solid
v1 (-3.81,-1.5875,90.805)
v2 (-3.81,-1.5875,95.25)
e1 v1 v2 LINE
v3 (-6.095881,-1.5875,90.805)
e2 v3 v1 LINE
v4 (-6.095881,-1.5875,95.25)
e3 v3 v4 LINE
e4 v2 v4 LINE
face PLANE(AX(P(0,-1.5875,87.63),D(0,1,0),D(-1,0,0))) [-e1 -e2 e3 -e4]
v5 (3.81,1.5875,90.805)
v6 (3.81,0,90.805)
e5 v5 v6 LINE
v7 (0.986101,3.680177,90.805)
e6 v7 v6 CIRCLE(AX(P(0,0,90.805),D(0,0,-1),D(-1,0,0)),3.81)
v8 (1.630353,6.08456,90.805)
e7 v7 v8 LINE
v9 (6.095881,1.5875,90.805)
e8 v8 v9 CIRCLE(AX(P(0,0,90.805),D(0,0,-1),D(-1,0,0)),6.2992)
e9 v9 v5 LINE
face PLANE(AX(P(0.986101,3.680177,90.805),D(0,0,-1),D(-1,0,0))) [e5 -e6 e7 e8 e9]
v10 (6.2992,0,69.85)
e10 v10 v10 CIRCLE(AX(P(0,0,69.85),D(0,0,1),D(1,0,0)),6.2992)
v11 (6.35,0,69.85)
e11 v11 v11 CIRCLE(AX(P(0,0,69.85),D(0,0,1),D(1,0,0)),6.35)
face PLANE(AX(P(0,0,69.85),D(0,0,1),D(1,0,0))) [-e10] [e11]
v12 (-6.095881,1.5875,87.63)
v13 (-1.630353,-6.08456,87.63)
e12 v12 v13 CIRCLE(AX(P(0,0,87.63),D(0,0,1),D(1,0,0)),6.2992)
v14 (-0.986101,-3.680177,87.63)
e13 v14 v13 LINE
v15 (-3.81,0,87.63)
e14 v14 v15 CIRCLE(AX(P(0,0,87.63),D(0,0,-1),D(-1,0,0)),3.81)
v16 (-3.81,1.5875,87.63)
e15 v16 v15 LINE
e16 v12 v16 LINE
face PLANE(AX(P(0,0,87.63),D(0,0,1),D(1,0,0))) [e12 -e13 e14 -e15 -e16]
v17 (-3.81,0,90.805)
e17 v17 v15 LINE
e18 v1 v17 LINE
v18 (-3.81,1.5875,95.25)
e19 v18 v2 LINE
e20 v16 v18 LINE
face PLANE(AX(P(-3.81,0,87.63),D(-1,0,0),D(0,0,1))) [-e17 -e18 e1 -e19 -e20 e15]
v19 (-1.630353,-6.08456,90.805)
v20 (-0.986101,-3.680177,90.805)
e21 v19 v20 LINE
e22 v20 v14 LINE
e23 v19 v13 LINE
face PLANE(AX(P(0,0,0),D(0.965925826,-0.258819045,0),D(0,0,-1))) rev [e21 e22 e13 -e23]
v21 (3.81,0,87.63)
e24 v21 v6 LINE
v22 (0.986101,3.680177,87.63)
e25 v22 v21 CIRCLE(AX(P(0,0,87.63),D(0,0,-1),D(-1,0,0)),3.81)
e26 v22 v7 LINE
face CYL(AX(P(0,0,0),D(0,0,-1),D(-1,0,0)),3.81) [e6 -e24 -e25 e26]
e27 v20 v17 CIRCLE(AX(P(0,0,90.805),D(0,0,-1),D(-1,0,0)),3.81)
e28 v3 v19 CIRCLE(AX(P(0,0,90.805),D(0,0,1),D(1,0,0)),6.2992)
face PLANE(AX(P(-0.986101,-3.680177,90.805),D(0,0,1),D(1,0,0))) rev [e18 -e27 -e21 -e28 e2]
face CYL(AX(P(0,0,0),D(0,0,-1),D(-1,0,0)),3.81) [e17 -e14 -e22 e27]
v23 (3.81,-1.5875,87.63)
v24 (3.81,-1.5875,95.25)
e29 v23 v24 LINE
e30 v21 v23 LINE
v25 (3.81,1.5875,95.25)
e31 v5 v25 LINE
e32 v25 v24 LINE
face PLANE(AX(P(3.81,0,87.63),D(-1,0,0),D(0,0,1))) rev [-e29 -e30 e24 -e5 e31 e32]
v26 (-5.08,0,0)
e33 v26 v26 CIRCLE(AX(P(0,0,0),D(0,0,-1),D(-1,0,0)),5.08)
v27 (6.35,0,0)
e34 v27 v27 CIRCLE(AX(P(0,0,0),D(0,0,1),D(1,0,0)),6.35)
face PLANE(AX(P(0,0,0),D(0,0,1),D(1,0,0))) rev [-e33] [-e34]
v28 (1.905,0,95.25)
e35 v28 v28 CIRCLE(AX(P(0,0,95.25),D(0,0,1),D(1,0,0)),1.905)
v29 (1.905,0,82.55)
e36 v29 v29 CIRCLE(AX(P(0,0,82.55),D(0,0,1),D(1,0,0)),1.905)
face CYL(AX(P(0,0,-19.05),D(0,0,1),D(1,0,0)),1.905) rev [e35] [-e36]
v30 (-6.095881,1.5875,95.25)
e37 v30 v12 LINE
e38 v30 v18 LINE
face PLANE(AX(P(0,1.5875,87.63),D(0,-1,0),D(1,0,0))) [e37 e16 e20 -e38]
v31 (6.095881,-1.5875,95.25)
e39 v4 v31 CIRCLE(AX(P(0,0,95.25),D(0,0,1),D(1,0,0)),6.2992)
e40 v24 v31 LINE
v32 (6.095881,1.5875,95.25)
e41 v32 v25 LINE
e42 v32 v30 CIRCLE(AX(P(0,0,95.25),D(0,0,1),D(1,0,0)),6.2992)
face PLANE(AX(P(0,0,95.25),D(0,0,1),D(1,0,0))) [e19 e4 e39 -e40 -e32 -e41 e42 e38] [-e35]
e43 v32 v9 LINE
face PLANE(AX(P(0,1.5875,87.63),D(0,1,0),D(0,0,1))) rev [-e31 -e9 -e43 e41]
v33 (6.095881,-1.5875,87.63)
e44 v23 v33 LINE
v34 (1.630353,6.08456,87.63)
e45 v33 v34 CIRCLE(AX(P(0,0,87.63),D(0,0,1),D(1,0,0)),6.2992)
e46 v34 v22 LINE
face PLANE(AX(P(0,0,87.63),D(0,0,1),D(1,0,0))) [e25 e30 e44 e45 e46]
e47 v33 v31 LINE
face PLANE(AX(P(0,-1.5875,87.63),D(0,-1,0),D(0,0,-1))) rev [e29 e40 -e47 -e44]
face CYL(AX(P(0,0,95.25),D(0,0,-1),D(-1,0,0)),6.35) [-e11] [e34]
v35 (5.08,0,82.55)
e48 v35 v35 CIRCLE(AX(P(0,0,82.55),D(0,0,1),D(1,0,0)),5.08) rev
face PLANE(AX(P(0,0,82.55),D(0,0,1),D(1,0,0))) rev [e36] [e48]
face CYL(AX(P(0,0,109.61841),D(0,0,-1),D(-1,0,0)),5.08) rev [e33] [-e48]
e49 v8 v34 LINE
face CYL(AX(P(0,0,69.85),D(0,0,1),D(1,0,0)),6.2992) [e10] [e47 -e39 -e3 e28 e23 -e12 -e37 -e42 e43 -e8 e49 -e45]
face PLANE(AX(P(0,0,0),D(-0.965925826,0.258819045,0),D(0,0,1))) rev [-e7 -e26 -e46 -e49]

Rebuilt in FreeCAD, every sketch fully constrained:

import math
import FreeCAD as App
import Part
import Sketcher

V = App.Vector
Q = App.Units.Quantity


def add_polygon(sketch, points):
    """Adds a closed chain of lines whose ends are joined by coincident constraints."""
    first, n = sketch.GeometryCount, len(points)
    for a, b in zip(points, points[1:] + points[:1]):
        sketch.addGeometry(Part.LineSegment(App.Vector(*a, 0), App.Vector(*b, 0)), False)
    for i in range(n):
        sketch.addConstraint(Sketcher.Constraint("Coincident", first + i, 2, first + (i + 1) % n, 1))

doc = App.newDocument("Part")
params = doc.addObject("Spreadsheet::Sheet", "Params")
for row, (alias, value) in enumerate([
    ("sketch1_diameter", "0.5 in"),
    ("pad1_length", "3.75 in"),
    ("sketch2_diameter", "0.4 in"),
    ("pocket1_length", "3.25 in"),
    ("sketch3_diameter", "0.15 in"),
    ("pocket2_length", "4.5 in"),
    ("sketch4_radius", "0.25 in"),
    ("sketch4_height", "0.125 in"),
    ("pocket3_length", "0.3 in"),
    ("sketch5_width", "0.1 in"),
    ("sketch5_height", "0.125 in"),
    ("groove_angle", "75 deg"),
    ("sketch6_diameter", "0.5 in"),
    ("sketch6_diameter2", "0.496 in"),
    ("pocket4_length", "1 in"),
], start=1):
    params.set(f"A{row}", alias)
    params.set(f"B{row}", "=" + value)
    params.setAlias(f"B{row}", alias)

body = doc.addObject("PartDesign::Body", "Body")

# Sketch on XY plane
sketch1 = body.newObject("Sketcher::SketchObject", "Sketch")
sketch1.AttachmentSupport = (doc.getObject("XY_Plane"), [""])
sketch1.MapMode = "FlatFace"
sketch1.addGeometry(Part.Circle(V(0, 0, 0), V(0, 0, 1), 6.35), False)
sketch1.addConstraint(Sketcher.Constraint("Coincident", 0, 3, -1, 1))
sketch1.addConstraint(Sketcher.Constraint("Diameter", 0, Q("0.5 in")))
sketch1.setExpression("Constraints[1]", "Params.sketch1_diameter")
pad1 = body.newObject("PartDesign::Pad", "Pad")
pad1.Profile = sketch1
pad1.setExpression("Length", "Params.pad1_length")

# Sketch on XY plane
sketch2 = body.newObject("Sketcher::SketchObject", "Sketch001")
sketch2.AttachmentSupport = (doc.getObject("XY_Plane"), [""])
sketch2.MapMode = "FlatFace"
sketch2.addGeometry(Part.Circle(V(0, 0, 0), V(0, 0, 1), 5.08), False)
sketch2.addConstraint(Sketcher.Constraint("Coincident", 0, 3, -1, 1))
sketch2.addConstraint(Sketcher.Constraint("Diameter", 0, Q("0.4 in")))
sketch2.setExpression("Constraints[1]", "Params.sketch2_diameter")
pocket1 = body.newObject("PartDesign::Pocket", "Pocket")
pocket1.Profile = sketch2
pocket1.setExpression("Length", "Params.pocket1_length")
pocket1.Reversed = True

# Sketch on XY plane
sketch3 = body.newObject("Sketcher::SketchObject", "Sketch002")
sketch3.AttachmentSupport = (doc.getObject("XY_Plane"), [""])
sketch3.MapMode = "FlatFace"
sketch3.AttachmentOffset = App.Placement(V(0, 0, 3.75 * 25.4), App.Rotation())
sketch3.addGeometry(Part.Circle(V(0, 0, 0), V(0, 0, 1), 1.905), False)
sketch3.addConstraint(Sketcher.Constraint("Coincident", 0, 3, -1, 1))
sketch3.addConstraint(Sketcher.Constraint("Diameter", 0, Q("0.15 in")))
sketch3.setExpression("Constraints[1]", "Params.sketch3_diameter")
pocket2 = body.newObject("PartDesign::Pocket", "Pocket001")
pocket2.Profile = sketch3
pocket2.setExpression("Length", "Params.pocket2_length")

# Sketch on XY plane
sketch4 = body.newObject("Sketcher::SketchObject", "Sketch003")
sketch4.AttachmentSupport = (doc.getObject("XY_Plane"), [""])
sketch4.MapMode = "FlatFace"
sketch4.AttachmentOffset = App.Placement(V(0, 0, 3.75 * 25.4), App.Rotation())
sketch4.addGeometry(Part.ArcOfCircle(Part.Circle(V(0, 0, 0), V(0, 0, 1), 6.35), math.radians(0), math.radians(14.477512)), False)
sketch4.addGeometry(Part.LineSegment(V(6.148361, 1.5875, 0), V(3.81, 1.5875, 0)), False)
sketch4.addGeometry(Part.LineSegment(V(3.81, 1.5875, 0), V(3.81, -1.5875, 0)), False)
sketch4.addGeometry(Part.LineSegment(V(3.81, -1.5875, 0), V(6.148361, -1.5875, 0)), False)
sketch4.addGeometry(Part.ArcOfCircle(Part.Circle(V(0, 0, 0), V(0, 0, 1), 6.35), math.radians(-14.477512), math.radians(0)), False)
sketch4.addGeometry(Part.LineSegment(V(-3.81, 1.5875, 0), V(-6.148361, 1.5875, 0)), False)
sketch4.addGeometry(Part.ArcOfCircle(Part.Circle(V(0, 0, 0), V(0, 0, 1), 6.35), math.radians(165.522488), math.radians(194.477512)), False)
sketch4.addGeometry(Part.LineSegment(V(-6.148361, -1.5875, 0), V(-3.81, -1.5875, 0)), False)
sketch4.addGeometry(Part.LineSegment(V(-3.81, -1.5875, 0), V(-3.81, 1.5875, 0)), False)
sketch4.addConstraint(Sketcher.Constraint("Coincident", 0, 2, 1, 1))
sketch4.addConstraint(Sketcher.Constraint("Coincident", 1, 2, 2, 1))
sketch4.addConstraint(Sketcher.Constraint("Coincident", 2, 2, 3, 1))
sketch4.addConstraint(Sketcher.Constraint("Coincident", 3, 2, 4, 1))
sketch4.addConstraint(Sketcher.Constraint("Tangent", 4, 2, 0, 1))
sketch4.addConstraint(Sketcher.Constraint("Coincident", 5, 2, 6, 1))
sketch4.addConstraint(Sketcher.Constraint("Coincident", 6, 2, 7, 1))
sketch4.addConstraint(Sketcher.Constraint("Coincident", 7, 2, 8, 1))
sketch4.addConstraint(Sketcher.Constraint("Coincident", 8, 2, 5, 1))
sketch4.addConstraint(Sketcher.Constraint("Horizontal", 1))
sketch4.addConstraint(Sketcher.Constraint("Vertical", 2))
sketch4.addConstraint(Sketcher.Constraint("Horizontal", 3))
sketch4.addConstraint(Sketcher.Constraint("Horizontal", 5))
sketch4.addConstraint(Sketcher.Constraint("Horizontal", 7))
sketch4.addConstraint(Sketcher.Constraint("Vertical", 8))
sketch4.addConstraint(Sketcher.Constraint("Coincident", 0, 3, -1, 1))
sketch4.addConstraint(Sketcher.Constraint("Coincident", 6, 3, -1, 1))
sketch4.addConstraint(Sketcher.Constraint("Equal", 0, 4))
sketch4.addConstraint(Sketcher.Constraint("Equal", 4, 6))
sketch4.addConstraint(Sketcher.Constraint("Symmetric", 1, 2, 7, 2, -1, 1))
sketch4.addConstraint(Sketcher.Constraint("PointOnObject", 4, 2, -1))
sketch4.addConstraint(Sketcher.Constraint("Horizontal", 1, 2, 5, 2))
sketch4.addConstraint(Sketcher.Constraint("Horizontal", 3, 2, 6, 2))
sketch4.addConstraint(Sketcher.Constraint("Radius", 0, Q("0.25 in")))
sketch4.addConstraint(Sketcher.Constraint("DistanceX", 1, 2, 4, 2, Q("0.1 in")))
sketch4.addConstraint(Sketcher.Constraint("DistanceY", 2, 2, 2, 1, Q("0.125 in")))
sketch4.setExpression("Constraints[23]", "Params.sketch4_radius")
sketch4.setExpression("Constraints[25]", "Params.sketch4_height")
pocket3 = body.newObject("PartDesign::Pocket", "Pocket002")
pocket3.Profile = sketch4
pocket3.setExpression("Length", "Params.pocket3_length")

# Sketch on XZ plane
sketch5 = body.newObject("Sketcher::SketchObject", "Sketch004")
sketch5.AttachmentSupport = (doc.getObject("XZ_Plane"), [""])
sketch5.MapMode = "FlatFace"
add_polygon(sketch5, [(3.81, 87.63), (3.81, 90.805), (6.35, 90.805), (6.35, 87.63)])  # lines 0-3
add_polygon(sketch5, [(-6.35, 90.805), (-3.81, 90.805), (-3.81, 87.63), (-6.35, 87.63)])  # lines 4-7
sketch5.addConstraint(Sketcher.Constraint("Vertical", 0))
sketch5.addConstraint(Sketcher.Constraint("Horizontal", 1))
sketch5.addConstraint(Sketcher.Constraint("Vertical", 2))
sketch5.addConstraint(Sketcher.Constraint("Horizontal", 3))
sketch5.addConstraint(Sketcher.Constraint("Horizontal", 4))
sketch5.addConstraint(Sketcher.Constraint("Vertical", 5))
sketch5.addConstraint(Sketcher.Constraint("Horizontal", 6))
sketch5.addConstraint(Sketcher.Constraint("Vertical", 7))
sketch5.addConstraint(Sketcher.Constraint("Symmetric", 0, 2, 4, 2, -2))
sketch5.addConstraint(Sketcher.Constraint("Symmetric", 2, 2, 6, 2, -2))
sketch5.addConstraint(Sketcher.Constraint("DistanceX", 1, 1, 1, 2, Q("0.1 in")))
sketch5.addConstraint(Sketcher.Constraint("DistanceX", 4, 2, 0, 2, Q("0.3 in")))
sketch5.addConstraint(Sketcher.Constraint("DistanceY", 0, 1, 0, 2, Q("0.125 in")))
sketch5.addConstraint(Sketcher.Constraint("DistanceY", -1, 1, 2, 2, Q("3.45 in")))
sketch5.setExpression("Constraints[18]", "Params.sketch5_width")
sketch5.setExpression("Constraints[20]", "Params.sketch5_height")
groove = body.newObject("PartDesign::Groove", "Groove")
groove.Profile = sketch5
groove.ReferenceAxis = (sketch5, ["V_Axis"])
groove.setExpression("Angle", "Params.groove_angle")

# Sketch on XY plane
sketch6 = body.newObject("Sketcher::SketchObject", "Sketch005")
sketch6.AttachmentSupport = (doc.getObject("XY_Plane"), [""])
sketch6.MapMode = "FlatFace"
sketch6.AttachmentOffset = App.Placement(V(0, 0, 3.75 * 25.4), App.Rotation())
sketch6.addGeometry(Part.Circle(V(0, 0, 0), V(0, 0, 1), 6.35), False)
sketch6.addGeometry(Part.Circle(V(0, 0, 0), V(0, 0, 1), 6.2992), False)
sketch6.addConstraint(Sketcher.Constraint("Coincident", 0, 3, -1, 1))
sketch6.addConstraint(Sketcher.Constraint("Coincident", 1, 3, -1, 1))
sketch6.addConstraint(Sketcher.Constraint("Diameter", 0, Q("0.5 in")))
sketch6.addConstraint(Sketcher.Constraint("Diameter", 1, Q("0.496 in")))
sketch6.setExpression("Constraints[2]", "Params.sketch6_diameter")
sketch6.setExpression("Constraints[3]", "Params.sketch6_diameter2")
pocket4 = body.newObject("PartDesign::Pocket", "Pocket003")
pocket4.Profile = sketch6
pocket4.setExpression("Length", "Params.pocket4_length")

doc.recompute()
